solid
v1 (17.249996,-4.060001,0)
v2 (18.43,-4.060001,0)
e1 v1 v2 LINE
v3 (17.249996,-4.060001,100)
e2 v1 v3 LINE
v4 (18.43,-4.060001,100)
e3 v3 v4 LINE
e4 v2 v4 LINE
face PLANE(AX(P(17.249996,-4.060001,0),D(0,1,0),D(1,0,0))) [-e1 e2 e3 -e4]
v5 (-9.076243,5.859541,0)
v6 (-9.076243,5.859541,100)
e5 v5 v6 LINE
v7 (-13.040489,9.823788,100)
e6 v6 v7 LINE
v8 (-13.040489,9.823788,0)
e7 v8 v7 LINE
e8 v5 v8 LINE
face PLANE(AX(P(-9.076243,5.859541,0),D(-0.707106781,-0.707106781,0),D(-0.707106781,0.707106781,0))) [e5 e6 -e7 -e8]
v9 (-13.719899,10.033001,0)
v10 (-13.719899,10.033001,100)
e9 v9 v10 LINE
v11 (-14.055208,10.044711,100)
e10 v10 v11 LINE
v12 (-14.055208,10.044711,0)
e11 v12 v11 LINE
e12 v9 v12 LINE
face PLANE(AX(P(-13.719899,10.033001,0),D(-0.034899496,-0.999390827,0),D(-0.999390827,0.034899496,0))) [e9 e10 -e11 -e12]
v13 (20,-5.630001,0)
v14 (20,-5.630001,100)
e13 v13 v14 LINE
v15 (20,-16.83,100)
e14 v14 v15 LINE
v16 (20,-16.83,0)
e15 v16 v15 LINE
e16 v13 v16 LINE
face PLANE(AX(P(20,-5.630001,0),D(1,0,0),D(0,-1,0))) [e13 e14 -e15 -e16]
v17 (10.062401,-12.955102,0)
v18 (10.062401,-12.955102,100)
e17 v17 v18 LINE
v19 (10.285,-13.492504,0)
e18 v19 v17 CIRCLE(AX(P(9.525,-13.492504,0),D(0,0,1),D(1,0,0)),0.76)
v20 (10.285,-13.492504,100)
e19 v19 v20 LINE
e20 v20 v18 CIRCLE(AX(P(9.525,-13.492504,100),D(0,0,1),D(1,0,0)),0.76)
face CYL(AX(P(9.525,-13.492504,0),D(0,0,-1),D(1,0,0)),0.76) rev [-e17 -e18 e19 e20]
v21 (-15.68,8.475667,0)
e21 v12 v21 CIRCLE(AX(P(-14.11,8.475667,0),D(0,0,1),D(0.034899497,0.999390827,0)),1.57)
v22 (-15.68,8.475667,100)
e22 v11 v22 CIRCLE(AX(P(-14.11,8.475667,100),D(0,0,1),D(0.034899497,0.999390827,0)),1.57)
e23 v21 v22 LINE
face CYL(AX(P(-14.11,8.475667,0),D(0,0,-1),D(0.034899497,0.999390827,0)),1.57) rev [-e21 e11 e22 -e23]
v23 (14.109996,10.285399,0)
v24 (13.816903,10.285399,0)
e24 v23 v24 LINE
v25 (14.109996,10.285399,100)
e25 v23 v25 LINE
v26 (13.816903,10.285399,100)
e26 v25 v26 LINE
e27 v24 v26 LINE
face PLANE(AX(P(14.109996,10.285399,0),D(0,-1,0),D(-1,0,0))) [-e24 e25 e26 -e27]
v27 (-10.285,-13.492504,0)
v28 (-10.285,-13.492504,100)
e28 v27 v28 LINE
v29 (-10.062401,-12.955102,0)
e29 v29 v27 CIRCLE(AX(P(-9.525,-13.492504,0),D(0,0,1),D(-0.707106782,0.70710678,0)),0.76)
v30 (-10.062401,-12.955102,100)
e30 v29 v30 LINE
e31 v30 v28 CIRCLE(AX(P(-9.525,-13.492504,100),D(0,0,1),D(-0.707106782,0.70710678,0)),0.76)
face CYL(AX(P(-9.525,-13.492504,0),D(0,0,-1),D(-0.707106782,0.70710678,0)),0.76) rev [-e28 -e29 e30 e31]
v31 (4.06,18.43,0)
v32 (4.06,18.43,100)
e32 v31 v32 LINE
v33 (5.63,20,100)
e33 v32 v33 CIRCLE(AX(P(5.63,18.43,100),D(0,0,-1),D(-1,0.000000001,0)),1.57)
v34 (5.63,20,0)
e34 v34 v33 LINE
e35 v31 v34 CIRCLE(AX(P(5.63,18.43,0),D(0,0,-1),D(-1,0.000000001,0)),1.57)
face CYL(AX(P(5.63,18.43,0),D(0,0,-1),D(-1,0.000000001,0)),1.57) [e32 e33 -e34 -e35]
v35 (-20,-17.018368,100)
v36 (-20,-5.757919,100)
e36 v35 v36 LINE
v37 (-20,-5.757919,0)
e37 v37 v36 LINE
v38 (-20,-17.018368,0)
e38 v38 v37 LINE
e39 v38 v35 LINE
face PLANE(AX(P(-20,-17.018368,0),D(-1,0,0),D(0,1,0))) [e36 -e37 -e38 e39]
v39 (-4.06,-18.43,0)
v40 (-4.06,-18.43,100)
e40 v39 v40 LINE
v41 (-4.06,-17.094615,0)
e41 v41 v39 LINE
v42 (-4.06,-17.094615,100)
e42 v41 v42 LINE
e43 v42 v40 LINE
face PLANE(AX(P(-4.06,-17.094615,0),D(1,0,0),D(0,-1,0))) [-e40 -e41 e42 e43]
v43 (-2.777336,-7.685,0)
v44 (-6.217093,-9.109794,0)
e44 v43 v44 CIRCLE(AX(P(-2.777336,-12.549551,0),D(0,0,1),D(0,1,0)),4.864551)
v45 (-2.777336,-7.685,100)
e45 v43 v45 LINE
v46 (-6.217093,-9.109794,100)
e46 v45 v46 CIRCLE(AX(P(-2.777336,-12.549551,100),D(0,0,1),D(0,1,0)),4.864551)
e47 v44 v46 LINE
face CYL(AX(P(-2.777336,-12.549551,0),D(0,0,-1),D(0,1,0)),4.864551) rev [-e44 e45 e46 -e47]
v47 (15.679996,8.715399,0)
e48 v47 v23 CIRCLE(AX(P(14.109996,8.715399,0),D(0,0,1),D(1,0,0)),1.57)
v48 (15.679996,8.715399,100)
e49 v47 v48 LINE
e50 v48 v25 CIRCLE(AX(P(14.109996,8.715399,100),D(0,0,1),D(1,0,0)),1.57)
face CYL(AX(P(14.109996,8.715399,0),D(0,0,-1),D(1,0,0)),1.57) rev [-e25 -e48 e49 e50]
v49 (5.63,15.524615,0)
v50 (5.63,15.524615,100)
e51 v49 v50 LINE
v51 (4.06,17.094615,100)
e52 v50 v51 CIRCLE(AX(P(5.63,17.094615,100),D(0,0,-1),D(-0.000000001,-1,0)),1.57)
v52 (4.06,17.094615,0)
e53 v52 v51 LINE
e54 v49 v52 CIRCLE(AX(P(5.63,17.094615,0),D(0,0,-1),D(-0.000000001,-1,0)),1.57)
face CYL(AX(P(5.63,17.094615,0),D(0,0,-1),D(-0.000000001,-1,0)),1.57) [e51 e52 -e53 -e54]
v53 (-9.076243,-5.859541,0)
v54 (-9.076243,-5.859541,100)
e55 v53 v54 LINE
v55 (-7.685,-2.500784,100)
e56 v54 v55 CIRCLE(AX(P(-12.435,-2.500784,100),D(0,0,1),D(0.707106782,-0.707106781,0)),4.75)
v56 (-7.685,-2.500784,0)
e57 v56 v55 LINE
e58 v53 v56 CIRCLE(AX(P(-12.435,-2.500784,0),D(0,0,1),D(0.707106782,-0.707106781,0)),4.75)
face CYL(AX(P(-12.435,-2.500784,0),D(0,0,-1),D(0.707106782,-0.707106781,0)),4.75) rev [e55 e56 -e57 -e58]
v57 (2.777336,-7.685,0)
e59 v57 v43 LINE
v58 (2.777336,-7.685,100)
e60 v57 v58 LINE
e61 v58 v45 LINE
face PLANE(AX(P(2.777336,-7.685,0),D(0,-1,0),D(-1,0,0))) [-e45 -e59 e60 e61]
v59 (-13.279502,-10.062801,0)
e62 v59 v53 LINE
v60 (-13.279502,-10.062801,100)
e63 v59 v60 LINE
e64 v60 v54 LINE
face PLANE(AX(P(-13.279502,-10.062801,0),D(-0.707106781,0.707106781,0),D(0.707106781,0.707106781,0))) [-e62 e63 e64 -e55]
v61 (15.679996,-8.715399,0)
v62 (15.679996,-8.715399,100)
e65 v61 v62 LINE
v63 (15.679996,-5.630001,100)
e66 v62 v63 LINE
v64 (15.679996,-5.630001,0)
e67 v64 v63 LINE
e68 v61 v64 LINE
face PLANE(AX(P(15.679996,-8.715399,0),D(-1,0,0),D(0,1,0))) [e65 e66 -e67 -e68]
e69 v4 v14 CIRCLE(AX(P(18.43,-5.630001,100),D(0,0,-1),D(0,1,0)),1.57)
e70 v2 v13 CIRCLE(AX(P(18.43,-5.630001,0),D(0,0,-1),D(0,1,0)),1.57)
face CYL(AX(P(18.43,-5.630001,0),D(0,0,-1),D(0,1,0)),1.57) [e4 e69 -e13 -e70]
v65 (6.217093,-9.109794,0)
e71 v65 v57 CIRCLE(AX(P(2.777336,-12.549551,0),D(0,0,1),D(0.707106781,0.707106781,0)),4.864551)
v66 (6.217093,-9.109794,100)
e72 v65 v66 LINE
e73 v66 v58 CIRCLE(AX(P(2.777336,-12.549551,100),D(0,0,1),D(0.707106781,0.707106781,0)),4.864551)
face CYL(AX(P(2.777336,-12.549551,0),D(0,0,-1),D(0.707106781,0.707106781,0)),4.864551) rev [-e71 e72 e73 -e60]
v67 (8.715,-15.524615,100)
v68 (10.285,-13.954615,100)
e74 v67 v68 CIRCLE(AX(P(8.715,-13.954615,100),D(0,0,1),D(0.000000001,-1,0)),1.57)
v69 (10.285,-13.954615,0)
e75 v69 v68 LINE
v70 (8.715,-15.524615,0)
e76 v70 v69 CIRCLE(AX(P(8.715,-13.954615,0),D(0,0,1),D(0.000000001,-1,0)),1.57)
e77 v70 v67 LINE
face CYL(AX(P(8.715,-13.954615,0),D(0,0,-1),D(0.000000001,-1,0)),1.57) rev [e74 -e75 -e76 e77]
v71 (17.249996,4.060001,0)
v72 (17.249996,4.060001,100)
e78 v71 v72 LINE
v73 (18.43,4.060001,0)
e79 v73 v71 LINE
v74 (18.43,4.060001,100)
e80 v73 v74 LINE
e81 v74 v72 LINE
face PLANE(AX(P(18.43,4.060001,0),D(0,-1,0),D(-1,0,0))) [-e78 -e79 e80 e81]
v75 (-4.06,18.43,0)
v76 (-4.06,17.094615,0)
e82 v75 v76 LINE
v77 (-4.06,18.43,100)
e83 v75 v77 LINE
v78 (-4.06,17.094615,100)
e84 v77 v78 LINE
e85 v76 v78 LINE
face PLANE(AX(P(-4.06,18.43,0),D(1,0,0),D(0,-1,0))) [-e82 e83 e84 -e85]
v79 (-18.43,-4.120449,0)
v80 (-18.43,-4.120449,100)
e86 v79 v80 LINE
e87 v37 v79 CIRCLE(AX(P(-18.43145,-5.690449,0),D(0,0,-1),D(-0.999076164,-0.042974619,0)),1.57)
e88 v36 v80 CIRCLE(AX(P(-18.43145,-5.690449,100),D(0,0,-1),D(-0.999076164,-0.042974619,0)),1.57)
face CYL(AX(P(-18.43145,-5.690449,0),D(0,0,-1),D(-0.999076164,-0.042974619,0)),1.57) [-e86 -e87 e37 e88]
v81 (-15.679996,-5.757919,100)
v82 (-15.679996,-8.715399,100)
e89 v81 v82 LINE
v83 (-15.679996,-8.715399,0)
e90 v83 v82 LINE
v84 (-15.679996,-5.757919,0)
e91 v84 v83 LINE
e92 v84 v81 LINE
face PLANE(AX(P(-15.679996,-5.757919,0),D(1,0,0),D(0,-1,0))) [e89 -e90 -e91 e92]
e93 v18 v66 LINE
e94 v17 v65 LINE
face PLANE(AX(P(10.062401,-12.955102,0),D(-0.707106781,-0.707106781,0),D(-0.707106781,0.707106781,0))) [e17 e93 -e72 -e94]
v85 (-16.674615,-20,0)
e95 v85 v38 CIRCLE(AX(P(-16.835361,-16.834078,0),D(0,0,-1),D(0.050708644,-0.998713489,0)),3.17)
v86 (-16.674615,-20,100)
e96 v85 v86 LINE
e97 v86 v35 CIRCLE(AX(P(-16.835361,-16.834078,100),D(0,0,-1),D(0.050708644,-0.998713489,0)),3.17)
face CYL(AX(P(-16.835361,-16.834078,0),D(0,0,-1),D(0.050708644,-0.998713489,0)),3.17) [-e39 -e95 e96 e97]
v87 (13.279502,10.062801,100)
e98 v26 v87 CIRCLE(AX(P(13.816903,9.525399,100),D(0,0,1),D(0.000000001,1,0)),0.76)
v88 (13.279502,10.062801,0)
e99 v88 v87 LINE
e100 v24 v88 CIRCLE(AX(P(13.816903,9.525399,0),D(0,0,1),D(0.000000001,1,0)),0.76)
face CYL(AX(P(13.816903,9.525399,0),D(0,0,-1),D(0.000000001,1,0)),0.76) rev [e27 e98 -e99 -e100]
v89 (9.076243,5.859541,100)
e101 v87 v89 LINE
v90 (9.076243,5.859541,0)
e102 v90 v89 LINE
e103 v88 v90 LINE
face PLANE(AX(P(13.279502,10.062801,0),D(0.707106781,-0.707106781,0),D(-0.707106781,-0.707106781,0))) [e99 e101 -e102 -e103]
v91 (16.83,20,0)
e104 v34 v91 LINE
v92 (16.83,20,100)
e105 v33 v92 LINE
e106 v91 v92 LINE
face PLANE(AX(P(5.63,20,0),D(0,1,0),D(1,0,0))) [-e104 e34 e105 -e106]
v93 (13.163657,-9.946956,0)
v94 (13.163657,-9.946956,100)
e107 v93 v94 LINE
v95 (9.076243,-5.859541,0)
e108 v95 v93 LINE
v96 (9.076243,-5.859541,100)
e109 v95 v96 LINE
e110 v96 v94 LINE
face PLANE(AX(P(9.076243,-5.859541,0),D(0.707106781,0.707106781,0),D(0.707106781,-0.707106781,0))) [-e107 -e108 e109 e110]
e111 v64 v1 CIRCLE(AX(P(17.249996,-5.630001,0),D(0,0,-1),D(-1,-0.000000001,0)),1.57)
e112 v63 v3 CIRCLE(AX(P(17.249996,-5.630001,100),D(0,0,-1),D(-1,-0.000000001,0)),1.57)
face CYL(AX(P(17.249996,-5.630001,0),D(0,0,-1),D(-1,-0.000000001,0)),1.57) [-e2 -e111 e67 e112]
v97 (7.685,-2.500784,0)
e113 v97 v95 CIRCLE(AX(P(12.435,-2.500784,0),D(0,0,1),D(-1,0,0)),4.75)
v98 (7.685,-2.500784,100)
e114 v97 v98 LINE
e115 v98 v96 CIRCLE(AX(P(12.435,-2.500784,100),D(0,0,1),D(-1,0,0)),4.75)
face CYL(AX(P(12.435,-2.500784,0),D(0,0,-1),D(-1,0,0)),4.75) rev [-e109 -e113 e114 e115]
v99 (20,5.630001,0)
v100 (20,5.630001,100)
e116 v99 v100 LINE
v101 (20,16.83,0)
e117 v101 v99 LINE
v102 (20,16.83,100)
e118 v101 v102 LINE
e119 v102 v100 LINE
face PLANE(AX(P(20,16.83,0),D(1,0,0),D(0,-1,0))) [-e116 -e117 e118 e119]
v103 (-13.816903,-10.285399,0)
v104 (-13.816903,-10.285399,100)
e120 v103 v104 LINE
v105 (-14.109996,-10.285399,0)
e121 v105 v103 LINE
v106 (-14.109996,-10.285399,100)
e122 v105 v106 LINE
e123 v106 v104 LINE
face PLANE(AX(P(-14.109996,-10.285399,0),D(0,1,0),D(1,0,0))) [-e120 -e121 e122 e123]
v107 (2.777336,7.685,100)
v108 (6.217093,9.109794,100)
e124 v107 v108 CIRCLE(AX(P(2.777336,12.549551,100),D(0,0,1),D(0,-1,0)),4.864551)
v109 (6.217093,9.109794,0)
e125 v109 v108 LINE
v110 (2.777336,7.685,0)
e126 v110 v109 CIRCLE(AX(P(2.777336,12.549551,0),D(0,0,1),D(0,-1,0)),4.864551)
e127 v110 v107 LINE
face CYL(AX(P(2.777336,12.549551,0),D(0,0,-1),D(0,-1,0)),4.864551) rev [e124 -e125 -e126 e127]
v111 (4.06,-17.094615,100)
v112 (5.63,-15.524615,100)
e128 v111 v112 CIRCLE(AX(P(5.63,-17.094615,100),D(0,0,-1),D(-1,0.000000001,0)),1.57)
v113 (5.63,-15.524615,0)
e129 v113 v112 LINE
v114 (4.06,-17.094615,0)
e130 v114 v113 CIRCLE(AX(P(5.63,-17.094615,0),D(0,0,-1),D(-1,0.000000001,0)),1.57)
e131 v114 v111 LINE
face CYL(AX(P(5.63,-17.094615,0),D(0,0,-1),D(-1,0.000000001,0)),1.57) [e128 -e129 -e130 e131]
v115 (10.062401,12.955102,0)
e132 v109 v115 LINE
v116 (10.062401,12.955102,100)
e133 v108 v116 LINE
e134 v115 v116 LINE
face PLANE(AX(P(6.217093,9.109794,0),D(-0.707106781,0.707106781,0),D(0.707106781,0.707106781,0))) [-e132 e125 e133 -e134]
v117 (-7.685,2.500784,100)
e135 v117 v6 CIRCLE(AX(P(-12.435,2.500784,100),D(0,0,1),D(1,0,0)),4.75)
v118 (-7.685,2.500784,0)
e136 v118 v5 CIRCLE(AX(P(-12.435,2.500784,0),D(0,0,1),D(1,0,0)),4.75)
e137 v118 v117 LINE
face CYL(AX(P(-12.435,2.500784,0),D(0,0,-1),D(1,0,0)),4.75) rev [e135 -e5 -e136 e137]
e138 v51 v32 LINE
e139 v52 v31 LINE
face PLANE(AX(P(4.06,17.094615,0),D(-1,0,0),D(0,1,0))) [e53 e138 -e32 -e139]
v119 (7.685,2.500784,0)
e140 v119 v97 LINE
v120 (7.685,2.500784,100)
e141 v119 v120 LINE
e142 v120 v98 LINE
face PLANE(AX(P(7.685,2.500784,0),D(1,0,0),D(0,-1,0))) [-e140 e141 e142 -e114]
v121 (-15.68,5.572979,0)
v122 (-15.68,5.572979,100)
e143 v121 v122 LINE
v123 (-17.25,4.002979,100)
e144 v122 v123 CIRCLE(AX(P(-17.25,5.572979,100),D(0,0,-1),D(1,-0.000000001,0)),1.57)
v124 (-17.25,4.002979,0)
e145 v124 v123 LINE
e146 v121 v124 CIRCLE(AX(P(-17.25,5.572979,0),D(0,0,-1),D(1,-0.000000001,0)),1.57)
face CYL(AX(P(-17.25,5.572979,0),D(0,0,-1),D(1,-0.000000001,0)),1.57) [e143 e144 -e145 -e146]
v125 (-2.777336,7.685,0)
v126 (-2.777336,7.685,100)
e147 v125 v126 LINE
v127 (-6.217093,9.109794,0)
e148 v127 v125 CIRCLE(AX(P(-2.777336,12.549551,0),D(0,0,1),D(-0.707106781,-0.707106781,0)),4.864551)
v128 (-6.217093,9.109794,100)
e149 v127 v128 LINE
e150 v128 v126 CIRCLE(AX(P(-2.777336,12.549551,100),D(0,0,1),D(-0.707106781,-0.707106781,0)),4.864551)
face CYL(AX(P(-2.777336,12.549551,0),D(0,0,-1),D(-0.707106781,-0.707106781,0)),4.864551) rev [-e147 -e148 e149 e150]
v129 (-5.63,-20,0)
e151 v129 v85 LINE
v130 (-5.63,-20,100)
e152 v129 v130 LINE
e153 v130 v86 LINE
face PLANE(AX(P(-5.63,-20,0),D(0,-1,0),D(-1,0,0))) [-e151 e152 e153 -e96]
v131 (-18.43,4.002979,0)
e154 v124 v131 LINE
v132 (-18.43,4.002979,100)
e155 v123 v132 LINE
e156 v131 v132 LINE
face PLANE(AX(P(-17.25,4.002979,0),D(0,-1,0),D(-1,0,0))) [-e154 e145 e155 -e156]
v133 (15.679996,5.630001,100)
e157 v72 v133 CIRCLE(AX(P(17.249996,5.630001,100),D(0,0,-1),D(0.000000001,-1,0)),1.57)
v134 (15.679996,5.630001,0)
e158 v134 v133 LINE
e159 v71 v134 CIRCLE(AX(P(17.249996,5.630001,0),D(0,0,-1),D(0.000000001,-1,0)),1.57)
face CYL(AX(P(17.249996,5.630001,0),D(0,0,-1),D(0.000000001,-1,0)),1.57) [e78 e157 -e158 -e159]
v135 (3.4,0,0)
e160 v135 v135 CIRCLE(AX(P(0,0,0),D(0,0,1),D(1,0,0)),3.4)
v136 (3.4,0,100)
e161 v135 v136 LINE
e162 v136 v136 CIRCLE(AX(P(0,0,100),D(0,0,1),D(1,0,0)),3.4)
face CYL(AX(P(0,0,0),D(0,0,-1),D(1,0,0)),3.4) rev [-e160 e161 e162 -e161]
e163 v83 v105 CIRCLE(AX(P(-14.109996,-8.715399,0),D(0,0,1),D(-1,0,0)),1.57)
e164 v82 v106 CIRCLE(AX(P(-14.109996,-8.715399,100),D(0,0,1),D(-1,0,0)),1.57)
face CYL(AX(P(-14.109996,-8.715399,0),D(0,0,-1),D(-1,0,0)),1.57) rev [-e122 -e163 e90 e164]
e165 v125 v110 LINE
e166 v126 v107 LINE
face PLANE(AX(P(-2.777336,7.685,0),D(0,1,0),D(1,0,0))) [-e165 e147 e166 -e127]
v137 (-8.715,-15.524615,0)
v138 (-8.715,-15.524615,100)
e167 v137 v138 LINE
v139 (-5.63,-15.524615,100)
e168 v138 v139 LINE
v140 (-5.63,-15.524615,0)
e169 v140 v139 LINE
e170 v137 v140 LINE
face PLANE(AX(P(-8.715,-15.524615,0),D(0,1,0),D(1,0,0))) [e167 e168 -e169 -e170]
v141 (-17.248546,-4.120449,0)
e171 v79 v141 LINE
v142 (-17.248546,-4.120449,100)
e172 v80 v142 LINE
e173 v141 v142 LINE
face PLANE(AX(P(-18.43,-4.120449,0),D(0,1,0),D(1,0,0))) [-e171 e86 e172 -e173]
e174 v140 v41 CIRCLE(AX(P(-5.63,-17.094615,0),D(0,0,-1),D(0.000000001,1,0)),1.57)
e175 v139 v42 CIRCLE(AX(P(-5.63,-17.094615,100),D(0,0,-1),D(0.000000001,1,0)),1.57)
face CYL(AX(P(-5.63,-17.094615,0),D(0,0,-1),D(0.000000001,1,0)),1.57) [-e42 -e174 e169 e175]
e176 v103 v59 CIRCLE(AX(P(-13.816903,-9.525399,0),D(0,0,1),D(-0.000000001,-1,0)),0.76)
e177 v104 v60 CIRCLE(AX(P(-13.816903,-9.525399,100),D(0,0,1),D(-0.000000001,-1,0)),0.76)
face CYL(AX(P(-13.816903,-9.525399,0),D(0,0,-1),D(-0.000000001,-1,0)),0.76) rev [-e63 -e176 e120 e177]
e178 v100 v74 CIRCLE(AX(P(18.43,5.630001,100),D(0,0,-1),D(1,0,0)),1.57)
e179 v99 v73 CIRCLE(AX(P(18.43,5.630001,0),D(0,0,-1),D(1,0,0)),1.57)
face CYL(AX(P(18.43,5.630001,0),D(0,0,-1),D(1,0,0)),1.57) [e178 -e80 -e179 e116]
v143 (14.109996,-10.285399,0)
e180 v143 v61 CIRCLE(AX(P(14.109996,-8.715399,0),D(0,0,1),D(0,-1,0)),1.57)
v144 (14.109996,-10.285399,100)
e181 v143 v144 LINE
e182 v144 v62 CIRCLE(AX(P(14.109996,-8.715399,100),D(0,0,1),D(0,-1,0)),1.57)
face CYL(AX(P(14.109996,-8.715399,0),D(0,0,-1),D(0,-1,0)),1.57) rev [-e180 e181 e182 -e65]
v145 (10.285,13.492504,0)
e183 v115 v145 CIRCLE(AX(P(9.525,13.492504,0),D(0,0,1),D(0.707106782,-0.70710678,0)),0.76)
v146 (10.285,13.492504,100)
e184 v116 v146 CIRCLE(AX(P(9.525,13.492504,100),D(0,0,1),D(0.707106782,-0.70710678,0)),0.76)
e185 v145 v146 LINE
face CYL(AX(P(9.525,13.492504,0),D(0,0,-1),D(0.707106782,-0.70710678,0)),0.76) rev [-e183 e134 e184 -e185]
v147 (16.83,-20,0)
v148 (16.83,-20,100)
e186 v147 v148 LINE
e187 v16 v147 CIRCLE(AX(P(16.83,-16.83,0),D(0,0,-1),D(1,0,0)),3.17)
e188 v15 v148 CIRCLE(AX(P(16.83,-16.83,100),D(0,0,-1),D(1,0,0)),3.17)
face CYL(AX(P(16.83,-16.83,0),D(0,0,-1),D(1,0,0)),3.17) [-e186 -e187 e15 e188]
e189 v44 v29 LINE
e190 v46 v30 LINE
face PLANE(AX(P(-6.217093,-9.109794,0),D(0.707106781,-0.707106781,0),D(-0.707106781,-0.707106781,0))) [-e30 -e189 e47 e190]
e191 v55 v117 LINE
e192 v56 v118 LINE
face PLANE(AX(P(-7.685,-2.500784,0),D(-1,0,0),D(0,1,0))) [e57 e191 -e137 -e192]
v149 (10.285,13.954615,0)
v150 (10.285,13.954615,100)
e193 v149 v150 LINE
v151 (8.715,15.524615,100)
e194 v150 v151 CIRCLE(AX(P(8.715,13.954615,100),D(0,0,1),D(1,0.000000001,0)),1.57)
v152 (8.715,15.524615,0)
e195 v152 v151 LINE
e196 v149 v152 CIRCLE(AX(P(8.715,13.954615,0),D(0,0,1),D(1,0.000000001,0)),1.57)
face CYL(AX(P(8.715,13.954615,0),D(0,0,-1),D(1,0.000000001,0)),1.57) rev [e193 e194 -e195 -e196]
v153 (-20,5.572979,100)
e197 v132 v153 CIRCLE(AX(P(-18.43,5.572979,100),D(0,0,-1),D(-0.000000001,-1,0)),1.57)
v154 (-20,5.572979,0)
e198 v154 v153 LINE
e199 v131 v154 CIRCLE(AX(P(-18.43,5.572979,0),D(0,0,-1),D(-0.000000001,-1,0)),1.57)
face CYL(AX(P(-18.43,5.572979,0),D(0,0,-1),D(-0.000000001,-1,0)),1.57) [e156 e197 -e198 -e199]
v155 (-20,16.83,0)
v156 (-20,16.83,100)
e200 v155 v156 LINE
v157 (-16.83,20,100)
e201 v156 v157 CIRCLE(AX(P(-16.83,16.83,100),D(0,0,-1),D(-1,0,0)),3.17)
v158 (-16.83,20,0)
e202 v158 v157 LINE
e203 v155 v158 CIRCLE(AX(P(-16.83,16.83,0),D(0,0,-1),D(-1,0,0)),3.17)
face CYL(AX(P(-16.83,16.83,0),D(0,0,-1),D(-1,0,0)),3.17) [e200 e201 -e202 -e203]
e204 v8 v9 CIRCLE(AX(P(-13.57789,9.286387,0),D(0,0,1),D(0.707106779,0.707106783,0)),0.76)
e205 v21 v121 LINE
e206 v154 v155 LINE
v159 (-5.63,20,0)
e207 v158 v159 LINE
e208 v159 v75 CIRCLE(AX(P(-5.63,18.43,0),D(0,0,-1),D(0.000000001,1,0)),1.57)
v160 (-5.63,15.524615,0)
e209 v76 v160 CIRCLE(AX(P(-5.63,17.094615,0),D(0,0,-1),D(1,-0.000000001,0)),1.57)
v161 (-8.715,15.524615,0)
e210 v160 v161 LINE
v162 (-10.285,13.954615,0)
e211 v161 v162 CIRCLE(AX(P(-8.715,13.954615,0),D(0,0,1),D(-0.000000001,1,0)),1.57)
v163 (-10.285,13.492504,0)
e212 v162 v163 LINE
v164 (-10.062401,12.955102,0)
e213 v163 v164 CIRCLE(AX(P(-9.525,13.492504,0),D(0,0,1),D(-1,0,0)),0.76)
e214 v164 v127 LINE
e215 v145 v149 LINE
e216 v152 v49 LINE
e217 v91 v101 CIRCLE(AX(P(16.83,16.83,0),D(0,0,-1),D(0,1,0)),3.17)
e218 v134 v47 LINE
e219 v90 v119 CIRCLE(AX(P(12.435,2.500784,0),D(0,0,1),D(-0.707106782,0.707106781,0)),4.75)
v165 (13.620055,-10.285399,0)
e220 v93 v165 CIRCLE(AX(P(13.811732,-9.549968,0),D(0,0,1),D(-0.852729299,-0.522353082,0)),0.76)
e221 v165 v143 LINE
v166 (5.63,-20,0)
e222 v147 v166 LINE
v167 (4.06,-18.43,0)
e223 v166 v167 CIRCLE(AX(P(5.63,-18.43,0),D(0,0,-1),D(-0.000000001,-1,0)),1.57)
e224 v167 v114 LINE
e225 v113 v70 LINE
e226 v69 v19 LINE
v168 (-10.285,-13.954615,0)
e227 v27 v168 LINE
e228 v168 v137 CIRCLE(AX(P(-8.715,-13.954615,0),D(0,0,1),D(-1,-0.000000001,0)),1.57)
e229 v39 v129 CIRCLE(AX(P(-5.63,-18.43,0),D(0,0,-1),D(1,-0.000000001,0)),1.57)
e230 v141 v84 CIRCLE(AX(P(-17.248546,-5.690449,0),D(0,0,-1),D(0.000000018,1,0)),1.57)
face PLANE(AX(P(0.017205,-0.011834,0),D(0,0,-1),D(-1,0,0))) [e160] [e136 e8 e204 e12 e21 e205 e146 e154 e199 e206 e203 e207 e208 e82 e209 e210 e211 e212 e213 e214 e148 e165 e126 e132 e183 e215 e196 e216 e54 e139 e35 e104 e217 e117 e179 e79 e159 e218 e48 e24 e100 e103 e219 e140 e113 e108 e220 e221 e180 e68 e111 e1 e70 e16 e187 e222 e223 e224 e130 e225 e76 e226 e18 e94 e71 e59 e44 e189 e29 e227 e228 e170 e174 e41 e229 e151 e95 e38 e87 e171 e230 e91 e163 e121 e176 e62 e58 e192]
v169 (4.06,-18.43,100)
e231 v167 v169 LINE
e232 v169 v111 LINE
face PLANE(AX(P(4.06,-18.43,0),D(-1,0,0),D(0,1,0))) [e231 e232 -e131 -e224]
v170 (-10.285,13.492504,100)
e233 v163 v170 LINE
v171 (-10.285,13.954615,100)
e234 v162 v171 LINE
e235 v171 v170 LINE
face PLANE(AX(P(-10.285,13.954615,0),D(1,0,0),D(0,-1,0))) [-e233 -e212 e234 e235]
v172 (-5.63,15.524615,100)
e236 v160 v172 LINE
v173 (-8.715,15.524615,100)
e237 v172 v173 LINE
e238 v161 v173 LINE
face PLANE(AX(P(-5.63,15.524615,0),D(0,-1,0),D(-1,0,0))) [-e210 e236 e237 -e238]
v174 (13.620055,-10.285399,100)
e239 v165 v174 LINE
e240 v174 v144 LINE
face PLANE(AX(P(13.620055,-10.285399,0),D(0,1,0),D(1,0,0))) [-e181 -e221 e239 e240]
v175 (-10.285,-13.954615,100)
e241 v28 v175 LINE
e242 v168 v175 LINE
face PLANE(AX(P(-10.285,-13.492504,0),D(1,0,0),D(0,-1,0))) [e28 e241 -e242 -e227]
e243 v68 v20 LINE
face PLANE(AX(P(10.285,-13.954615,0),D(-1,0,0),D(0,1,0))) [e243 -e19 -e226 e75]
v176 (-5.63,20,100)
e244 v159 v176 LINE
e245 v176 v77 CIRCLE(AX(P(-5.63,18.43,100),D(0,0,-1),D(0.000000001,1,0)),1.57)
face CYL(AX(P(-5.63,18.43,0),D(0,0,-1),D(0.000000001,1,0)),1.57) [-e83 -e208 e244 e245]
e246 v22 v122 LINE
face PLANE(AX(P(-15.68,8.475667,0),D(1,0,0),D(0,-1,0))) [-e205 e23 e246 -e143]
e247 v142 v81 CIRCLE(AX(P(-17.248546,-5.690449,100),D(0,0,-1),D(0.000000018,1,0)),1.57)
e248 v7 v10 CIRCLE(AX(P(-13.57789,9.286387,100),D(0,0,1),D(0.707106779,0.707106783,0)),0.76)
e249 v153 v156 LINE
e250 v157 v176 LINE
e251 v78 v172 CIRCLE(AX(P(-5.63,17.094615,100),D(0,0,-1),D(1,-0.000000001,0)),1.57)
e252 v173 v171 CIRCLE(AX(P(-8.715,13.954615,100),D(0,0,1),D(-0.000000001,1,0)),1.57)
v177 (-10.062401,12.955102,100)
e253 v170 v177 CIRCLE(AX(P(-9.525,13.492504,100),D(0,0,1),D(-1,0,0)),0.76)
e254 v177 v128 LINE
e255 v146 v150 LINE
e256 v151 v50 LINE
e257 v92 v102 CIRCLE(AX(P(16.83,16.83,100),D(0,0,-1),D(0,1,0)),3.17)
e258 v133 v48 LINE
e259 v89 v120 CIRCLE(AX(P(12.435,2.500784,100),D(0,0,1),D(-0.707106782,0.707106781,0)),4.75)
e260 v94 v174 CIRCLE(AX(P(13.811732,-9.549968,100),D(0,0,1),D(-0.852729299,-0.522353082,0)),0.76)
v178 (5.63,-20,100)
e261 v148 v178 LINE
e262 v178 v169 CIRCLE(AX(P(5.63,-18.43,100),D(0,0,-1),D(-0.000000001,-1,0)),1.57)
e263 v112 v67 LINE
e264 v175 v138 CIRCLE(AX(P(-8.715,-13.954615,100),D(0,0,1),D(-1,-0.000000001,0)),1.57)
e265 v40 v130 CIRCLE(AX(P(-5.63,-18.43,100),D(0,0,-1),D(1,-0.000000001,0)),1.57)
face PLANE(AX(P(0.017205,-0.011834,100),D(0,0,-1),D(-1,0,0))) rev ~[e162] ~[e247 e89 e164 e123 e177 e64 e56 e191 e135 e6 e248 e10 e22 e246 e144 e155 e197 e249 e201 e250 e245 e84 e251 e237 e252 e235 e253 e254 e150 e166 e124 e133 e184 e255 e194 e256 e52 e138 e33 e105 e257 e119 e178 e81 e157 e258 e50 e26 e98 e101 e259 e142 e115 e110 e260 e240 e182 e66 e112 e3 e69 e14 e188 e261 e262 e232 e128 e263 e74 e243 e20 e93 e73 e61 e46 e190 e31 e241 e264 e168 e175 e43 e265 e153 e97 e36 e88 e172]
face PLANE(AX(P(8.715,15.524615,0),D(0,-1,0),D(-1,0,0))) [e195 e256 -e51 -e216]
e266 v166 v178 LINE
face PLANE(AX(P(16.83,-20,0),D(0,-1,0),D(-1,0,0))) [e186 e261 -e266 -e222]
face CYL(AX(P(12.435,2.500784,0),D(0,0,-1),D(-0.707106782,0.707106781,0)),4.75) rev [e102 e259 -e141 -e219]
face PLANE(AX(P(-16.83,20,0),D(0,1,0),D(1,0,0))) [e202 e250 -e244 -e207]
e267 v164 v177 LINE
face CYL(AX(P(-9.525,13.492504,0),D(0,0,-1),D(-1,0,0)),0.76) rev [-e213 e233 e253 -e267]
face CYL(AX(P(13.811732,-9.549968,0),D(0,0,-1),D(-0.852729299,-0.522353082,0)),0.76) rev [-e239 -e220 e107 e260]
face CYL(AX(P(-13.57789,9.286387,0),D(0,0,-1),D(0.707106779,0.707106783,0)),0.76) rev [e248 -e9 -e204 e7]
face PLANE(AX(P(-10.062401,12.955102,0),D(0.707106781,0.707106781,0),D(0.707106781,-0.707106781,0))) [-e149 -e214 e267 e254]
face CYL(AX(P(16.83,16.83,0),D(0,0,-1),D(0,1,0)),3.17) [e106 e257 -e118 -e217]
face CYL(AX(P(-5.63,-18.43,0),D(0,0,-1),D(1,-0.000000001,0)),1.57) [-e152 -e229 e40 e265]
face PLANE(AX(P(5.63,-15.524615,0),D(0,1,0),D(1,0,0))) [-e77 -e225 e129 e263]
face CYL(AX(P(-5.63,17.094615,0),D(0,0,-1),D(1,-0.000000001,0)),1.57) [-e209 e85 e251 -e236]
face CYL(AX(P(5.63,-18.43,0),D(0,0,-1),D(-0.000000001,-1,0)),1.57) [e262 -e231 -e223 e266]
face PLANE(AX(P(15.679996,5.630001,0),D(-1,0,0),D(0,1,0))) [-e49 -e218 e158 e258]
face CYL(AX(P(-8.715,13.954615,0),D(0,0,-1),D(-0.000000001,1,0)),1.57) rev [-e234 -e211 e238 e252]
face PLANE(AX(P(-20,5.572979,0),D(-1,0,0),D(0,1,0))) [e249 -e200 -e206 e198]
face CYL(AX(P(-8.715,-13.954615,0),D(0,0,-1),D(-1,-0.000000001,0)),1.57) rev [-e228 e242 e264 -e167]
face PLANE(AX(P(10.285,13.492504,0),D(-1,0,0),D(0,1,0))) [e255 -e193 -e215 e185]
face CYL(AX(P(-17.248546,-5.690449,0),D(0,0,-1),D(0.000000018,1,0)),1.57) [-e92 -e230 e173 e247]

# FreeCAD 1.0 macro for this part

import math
import FreeCAD as App
import Part
import Sketcher

V = App.Vector
Q = App.Units.Quantity

doc = App.newDocument("Part")
body = doc.addObject("PartDesign::Body", "Body")

# Sketch on XY plane
sketch1 = body.newObject("Sketcher::SketchObject", "Sketch")
sketch1.AttachmentSupport = (doc.getObject("XY_Plane"), [""])
sketch1.MapMode = "FlatFace"
sketch1.addGeometry([
    Part.LineSegment(V(-5.63, -15.524615, 0), V(-8.715, -15.524615, 0)),  # 0
    Part.ArcOfCircle(Part.Circle(V(-8.715, -13.954615, 0), V(0, 0, 1), 1.57), math.radians(-180), math.radians(-90)),  # 1
    Part.LineSegment(V(-10.285, -13.954615, 0), V(-10.285, -13.492504, 0)),  # 2
    Part.ArcOfCircle(Part.Circle(V(-9.525, -13.492504, 0), V(0, 0, 1), 0.76), math.radians(135), math.radians(180)),  # 3
    Part.LineSegment(V(-10.062401, -12.955102, 0), V(-6.217093, -9.109794, 0)),  # 4
    Part.ArcOfCircle(Part.Circle(V(-2.777336, -12.549551, 0), V(0, 0, 1), 4.864551), math.radians(90), math.radians(135)),  # 5
    Part.LineSegment(V(-2.777336, -7.685, 0), V(2.777336, -7.685, 0)),  # 6
    Part.ArcOfCircle(Part.Circle(V(2.777336, -12.549551, 0), V(0, 0, 1), 4.864551), math.radians(45), math.radians(90)),  # 7
    Part.LineSegment(V(6.217093, -9.109794, 0), V(10.062401, -12.955102, 0)),  # 8
    Part.ArcOfCircle(Part.Circle(V(9.525, -13.492504, 0), V(0, 0, 1), 0.76), math.radians(0), math.radians(45)),  # 9
    Part.LineSegment(V(10.285, -13.492504, 0), V(10.285, -13.954615, 0)),  # 10
    Part.ArcOfCircle(Part.Circle(V(8.715, -13.954615, 0), V(0, 0, 1), 1.57), math.radians(-90), math.radians(0)),  # 11
    Part.LineSegment(V(8.715, -15.524615, 0), V(5.63, -15.524615, 0)),  # 12
    Part.ArcOfCircle(Part.Circle(V(5.63, -17.094615, 0), V(0, 0, 1), 1.57), math.radians(90), math.radians(180)),  # 13
    Part.LineSegment(V(4.06, -17.094615, 0), V(4.06, -18.43, 0)),  # 14
    Part.ArcOfCircle(Part.Circle(V(5.63, -18.43, 0), V(0, 0, 1), 1.57), math.radians(-180), math.radians(-90)),  # 15
    Part.LineSegment(V(5.63, -20, 0), V(16.83, -20, 0)),  # 16
    Part.ArcOfCircle(Part.Circle(V(16.83, -16.83, 0), V(0, 0, 1), 3.17), math.radians(-90), math.radians(0)),  # 17
    Part.LineSegment(V(20, -16.83, 0), V(20, -5.630001, 0)),  # 18
    Part.ArcOfCircle(Part.Circle(V(18.43, -5.630001, 0), V(0, 0, 1), 1.57), math.radians(0), math.radians(90)),  # 19
    Part.LineSegment(V(18.43, -4.060001, 0), V(17.249996, -4.060001, 0)),  # 20
    Part.ArcOfCircle(Part.Circle(V(17.249996, -5.630001, 0), V(0, 0, 1), 1.57), math.radians(90), math.radians(180)),  # 21
    Part.LineSegment(V(15.679996, -5.630001, 0), V(15.679996, -8.715399, 0)),  # 22
    Part.ArcOfCircle(Part.Circle(V(14.109996, -8.715399, 0), V(0, 0, 1), 1.57), math.radians(-90), math.radians(0)),  # 23
    Part.LineSegment(V(14.109996, -10.285399, 0), V(13.620055, -10.285399, 0)),  # 24
    Part.ArcOfCircle(Part.Circle(V(13.811732, -9.549968, 0), V(0, 0, 1), 0.76), math.radians(-148.509776), math.radians(-104.608114)),  # 25
    Part.LineSegment(V(13.163657, -9.946956, 0), V(9.076243, -5.859541, 0)),  # 26
    Part.ArcOfCircle(Part.Circle(V(12.435, -2.500784, 0), V(0, 0, 1), 4.75), math.radians(-180), math.radians(-135)),  # 27
    Part.LineSegment(V(7.685, -2.500784, 0), V(7.685, 2.500784, 0)),  # 28
    Part.ArcOfCircle(Part.Circle(V(12.435, 2.500784, 0), V(0, 0, 1), 4.75), math.radians(135), math.radians(180)),  # 29
    Part.LineSegment(V(9.076243, 5.859541, 0), V(13.279502, 10.062801, 0)),  # 30
    Part.ArcOfCircle(Part.Circle(V(13.816903, 9.525399, 0), V(0, 0, 1), 0.76), math.radians(90), math.radians(135)),  # 31
    Part.LineSegment(V(13.816903, 10.285399, 0), V(14.109996, 10.285399, 0)),  # 32
    Part.ArcOfCircle(Part.Circle(V(14.109996, 8.715399, 0), V(0, 0, 1), 1.57), math.radians(0), math.radians(90)),  # 33
    Part.LineSegment(V(15.679996, 8.715399, 0), V(15.679996, 5.630001, 0)),  # 34
    Part.ArcOfCircle(Part.Circle(V(17.249996, 5.630001, 0), V(0, 0, 1), 1.57), math.radians(180), math.radians(270)),  # 35
    Part.LineSegment(V(17.249996, 4.060001, 0), V(18.43, 4.060001, 0)),  # 36
    Part.ArcOfCircle(Part.Circle(V(18.43, 5.630001, 0), V(0, 0, 1), 1.57), math.radians(-90), math.radians(0)),  # 37
    Part.LineSegment(V(20, 5.630001, 0), V(20, 16.83, 0)),  # 38
    Part.ArcOfCircle(Part.Circle(V(16.83, 16.83, 0), V(0, 0, 1), 3.17), math.radians(0), math.radians(90)),  # 39
    Part.LineSegment(V(16.83, 20, 0), V(5.63, 20, 0)),  # 40
    Part.ArcOfCircle(Part.Circle(V(5.63, 18.43, 0), V(0, 0, 1), 1.57), math.radians(90), math.radians(180)),  # 41
    Part.LineSegment(V(4.06, 18.43, 0), V(4.06, 17.094615, 0)),  # 42
    Part.ArcOfCircle(Part.Circle(V(5.63, 17.094615, 0), V(0, 0, 1), 1.57), math.radians(-180), math.radians(-90)),  # 43
    Part.LineSegment(V(5.63, 15.524615, 0), V(8.715, 15.524615, 0)),  # 44
    Part.ArcOfCircle(Part.Circle(V(8.715, 13.954615, 0), V(0, 0, 1), 1.57), math.radians(0), math.radians(90)),  # 45
    Part.LineSegment(V(10.285, 13.954615, 0), V(10.285, 13.492504, 0)),  # 46
    Part.ArcOfCircle(Part.Circle(V(9.525, 13.492504, 0), V(0, 0, 1), 0.76), math.radians(-45), math.radians(0)),  # 47
    Part.LineSegment(V(10.062401, 12.955102, 0), V(6.217093, 9.109794, 0)),  # 48
    Part.ArcOfCircle(Part.Circle(V(2.777336, 12.549551, 0), V(0, 0, 1), 4.864551), math.radians(-90), math.radians(-45)),  # 49
    Part.LineSegment(V(2.777336, 7.685, 0), V(-2.777336, 7.685, 0)),  # 50
    Part.ArcOfCircle(Part.Circle(V(-2.777336, 12.549551, 0), V(0, 0, 1), 4.864551), math.radians(-135), math.radians(-90)),  # 51
    Part.LineSegment(V(-6.217093, 9.109794, 0), V(-10.062401, 12.955102, 0)),  # 52
    Part.ArcOfCircle(Part.Circle(V(-9.525, 13.492504, 0), V(0, 0, 1), 0.76), math.radians(180), math.radians(225)),  # 53
    Part.LineSegment(V(-10.285, 13.492504, 0), V(-10.285, 13.954615, 0)),  # 54
    Part.ArcOfCircle(Part.Circle(V(-8.715, 13.954615, 0), V(0, 0, 1), 1.57), math.radians(90), math.radians(180)),  # 55
    Part.LineSegment(V(-8.715, 15.524615, 0), V(-5.63, 15.524615, 0)),  # 56
    Part.ArcOfCircle(Part.Circle(V(-5.63, 17.094615, 0), V(0, 0, 1), 1.57), math.radians(-90), math.radians(0)),  # 57
    Part.LineSegment(V(-4.06, 17.094615, 0), V(-4.06, 18.43, 0)),  # 58
    Part.ArcOfCircle(Part.Circle(V(-5.63, 18.43, 0), V(0, 0, 1), 1.57), math.radians(0), math.radians(90)),  # 59
    Part.LineSegment(V(-5.63, 20, 0), V(-16.83, 20, 0)),  # 60
    Part.ArcOfCircle(Part.Circle(V(-16.83, 16.83, 0), V(0, 0, 1), 3.17), math.radians(90), math.radians(180)),  # 61
    Part.LineSegment(V(-20, 16.83, 0), V(-20, 5.572979, 0)),  # 62
    Part.ArcOfCircle(Part.Circle(V(-18.43, 5.572979, 0), V(0, 0, 1), 1.57), math.radians(-180), math.radians(-90)),  # 63
    Part.LineSegment(V(-18.43, 4.002979, 0), V(-17.25, 4.002979, 0)),  # 64
    Part.ArcOfCircle(Part.Circle(V(-17.25, 5.572979, 0), V(0, 0, 1), 1.57), math.radians(-90), math.radians(0)),  # 65
    Part.LineSegment(V(-15.68, 5.572979, 0), V(-15.68, 8.475667, 0)),  # 66
    Part.ArcOfCircle(Part.Circle(V(-14.11, 8.475667, 0), V(0, 0, 1), 1.57), math.radians(88), math.radians(180)),  # 67
    Part.LineSegment(V(-14.055208, 10.044711, 0), V(-13.719899, 10.033001, 0)),  # 68
    Part.ArcOfCircle(Part.Circle(V(-13.57789, 9.286387, 0), V(0, 0, 1), 0.76), math.radians(45), math.radians(100.769233)),  # 69
    Part.LineSegment(V(-13.040489, 9.823788, 0), V(-9.076243, 5.859541, 0)),  # 70
    Part.ArcOfCircle(Part.Circle(V(-12.435, 2.500784, 0), V(0, 0, 1), 4.75), math.radians(0), math.radians(45)),  # 71
    Part.LineSegment(V(-7.685, 2.500784, 0), V(-7.685, -2.500784, 0)),  # 72
    Part.ArcOfCircle(Part.Circle(V(-12.435, -2.500784, 0), V(0, 0, 1), 4.75), math.radians(-45), math.radians(0)),  # 73
    Part.LineSegment(V(-9.076243, -5.859541, 0), V(-13.279502, -10.062801, 0)),  # 74
    Part.ArcOfCircle(Part.Circle(V(-13.816903, -9.525399, 0), V(0, 0, 1), 0.76), math.radians(-90), math.radians(-45)),  # 75
    Part.LineSegment(V(-13.816903, -10.285399, 0), V(-14.109996, -10.285399, 0)),  # 76
    Part.ArcOfCircle(Part.Circle(V(-14.109996, -8.715399, 0), V(0, 0, 1), 1.57), math.radians(180), math.radians(270)),  # 77
    Part.LineSegment(V(-15.679996, -8.715399, 0), V(-15.679996, -5.757919, 0)),  # 78
    Part.ArcOfCircle(Part.Circle(V(-17.248546, -5.690449, 0), V(0, 0, 1), 1.57), math.radians(-2.463018), math.radians(89.999999)),  # 79
    Part.LineSegment(V(-17.248546, -4.120449, 0), V(-18.43, -4.120449, 0)),  # 80
    Part.ArcOfCircle(Part.Circle(V(-18.43145, -5.690449, 0), V(0, 0, 1), 1.57), math.radians(89.947068), math.radians(182.463023)),  # 81
    Part.LineSegment(V(-20, -5.757919, 0), V(-20, -17.018368, 0)),  # 82
    Part.ArcOfCircle(Part.Circle(V(-16.835361, -16.834078, 0), V(0, 0, 1), 3.17), math.radians(-176.667196), math.radians(-87.093362)),  # 83
    Part.LineSegment(V(-16.674615, -20, 0), V(-5.63, -20, 0)),  # 84
    Part.ArcOfCircle(Part.Circle(V(-5.63, -18.43, 0), V(0, 0, 1), 1.57), math.radians(-90), math.radians(0)),  # 85
    Part.LineSegment(V(-4.06, -18.43, 0), V(-4.06, -17.094615, 0)),  # 86
    Part.ArcOfCircle(Part.Circle(V(-5.63, -17.094615, 0), V(0, 0, 1), 1.57), math.radians(0), math.radians(90)),  # 87
    Part.Circle(V(0, 0, 0), V(0, 0, 1), 3.4),  # 88
], False)
sketch1.addConstraint([
    Sketcher.Constraint("Tangent", 0, 2, 1, 2),
    Sketcher.Constraint("Tangent", 1, 1, 2, 1),
    Sketcher.Constraint("Tangent", 2, 2, 3, 2),
    Sketcher.Constraint("Tangent", 3, 1, 4, 1),
    Sketcher.Constraint("Tangent", 4, 2, 5, 2),
    Sketcher.Constraint("Tangent", 5, 1, 6, 1),
    Sketcher.Constraint("Tangent", 6, 2, 7, 2),
    Sketcher.Constraint("Tangent", 7, 1, 8, 1),
    Sketcher.Constraint("Tangent", 8, 2, 9, 2),
    Sketcher.Constraint("Tangent", 9, 1, 10, 1),
    Sketcher.Constraint("Tangent", 10, 2, 11, 2),
    Sketcher.Constraint("Tangent", 11, 1, 12, 1),
    Sketcher.Constraint("Tangent", 12, 2, 13, 1),
    Sketcher.Constraint("Tangent", 13, 2, 14, 1),
    Sketcher.Constraint("Tangent", 14, 2, 15, 1),
    Sketcher.Constraint("Tangent", 15, 2, 16, 1),
    Sketcher.Constraint("Tangent", 16, 2, 17, 1),
    Sketcher.Constraint("Tangent", 17, 2, 18, 1),
    Sketcher.Constraint("Tangent", 18, 2, 19, 1),
    Sketcher.Constraint("Tangent", 19, 2, 20, 1),
    Sketcher.Constraint("Tangent", 20, 2, 21, 1),
    Sketcher.Constraint("Tangent", 21, 2, 22, 1),
    Sketcher.Constraint("Tangent", 22, 2, 23, 2),
    Sketcher.Constraint("Tangent", 23, 1, 24, 1),
    Sketcher.Constraint("Coincident", 24, 2, 25, 2),
    Sketcher.Constraint("Coincident", 25, 1, 26, 1),
    Sketcher.Constraint("Tangent", 26, 2, 27, 2),
    Sketcher.Constraint("Tangent", 27, 1, 28, 1),
    Sketcher.Constraint("Tangent", 28, 2, 29, 2),
    Sketcher.Constraint("Tangent", 29, 1, 30, 1),
    Sketcher.Constraint("Tangent", 30, 2, 31, 2),
    Sketcher.Constraint("Tangent", 31, 1, 32, 1),
    Sketcher.Constraint("Tangent", 32, 2, 33, 2),
    Sketcher.Constraint("Tangent", 33, 1, 34, 1),
    Sketcher.Constraint("Tangent", 34, 2, 35, 1),
    Sketcher.Constraint("Tangent", 35, 2, 36, 1),
    Sketcher.Constraint("Tangent", 36, 2, 37, 1),
    Sketcher.Constraint("Tangent", 37, 2, 38, 1),
    Sketcher.Constraint("Tangent", 38, 2, 39, 1),
    Sketcher.Constraint("Tangent", 39, 2, 40, 1),
    Sketcher.Constraint("Tangent", 40, 2, 41, 1),
    Sketcher.Constraint("Tangent", 41, 2, 42, 1),
    Sketcher.Constraint("Tangent", 42, 2, 43, 1),
    Sketcher.Constraint("Tangent", 43, 2, 44, 1),
    Sketcher.Constraint("Tangent", 44, 2, 45, 2),
    Sketcher.Constraint("Tangent", 45, 1, 46, 1),
    Sketcher.Constraint("Tangent", 46, 2, 47, 2),
    Sketcher.Constraint("Tangent", 47, 1, 48, 1),
    Sketcher.Constraint("Tangent", 48, 2, 49, 2),
    Sketcher.Constraint("Tangent", 49, 1, 50, 1),
    Sketcher.Constraint("Tangent", 50, 2, 51, 2),
    Sketcher.Constraint("Tangent", 51, 1, 52, 1),
    Sketcher.Constraint("Tangent", 52, 2, 53, 2),
    Sketcher.Constraint("Tangent", 53, 1, 54, 1),
    Sketcher.Constraint("Tangent", 54, 2, 55, 2),
    Sketcher.Constraint("Tangent", 55, 1, 56, 1),
    Sketcher.Constraint("Tangent", 56, 2, 57, 1),
    Sketcher.Constraint("Tangent", 57, 2, 58, 1),
    Sketcher.Constraint("Tangent", 58, 2, 59, 1),
    Sketcher.Constraint("Tangent", 59, 2, 60, 1),
    Sketcher.Constraint("Tangent", 60, 2, 61, 1),
    Sketcher.Constraint("Tangent", 61, 2, 62, 1),
    Sketcher.Constraint("Tangent", 62, 2, 63, 1),
    Sketcher.Constraint("Tangent", 63, 2, 64, 1),
    Sketcher.Constraint("Tangent", 64, 2, 65, 1),
    Sketcher.Constraint("Tangent", 65, 2, 66, 1),
    Sketcher.Constraint("Tangent", 66, 2, 67, 2),
    Sketcher.Constraint("Tangent", 67, 1, 68, 1),
    Sketcher.Constraint("Coincident", 68, 2, 69, 2),
    Sketcher.Constraint("Tangent", 69, 1, 70, 1),
    Sketcher.Constraint("Tangent", 70, 2, 71, 2),
    Sketcher.Constraint("Tangent", 71, 1, 72, 1),
    Sketcher.Constraint("Tangent", 72, 2, 73, 2),
    Sketcher.Constraint("Tangent", 73, 1, 74, 1),
    Sketcher.Constraint("Tangent", 74, 2, 75, 2),
    Sketcher.Constraint("Tangent", 75, 1, 76, 1),
    Sketcher.Constraint("Tangent", 76, 2, 77, 2),
    Sketcher.Constraint("Tangent", 77, 1, 78, 1),
    Sketcher.Constraint("Coincident", 78, 2, 79, 1),
    Sketcher.Constraint("Tangent", 79, 2, 80, 1),
    Sketcher.Constraint("Coincident", 80, 2, 81, 1),
    Sketcher.Constraint("Coincident", 81, 2, 82, 1),
    Sketcher.Constraint("Coincident", 82, 2, 83, 1),
    Sketcher.Constraint("Coincident", 83, 2, 84, 1),
    Sketcher.Constraint("Tangent", 84, 2, 85, 1),
    Sketcher.Constraint("Tangent", 85, 2, 86, 1),
    Sketcher.Constraint("Tangent", 86, 2, 87, 1),
    Sketcher.Constraint("Tangent", 87, 2, 0, 1),
    Sketcher.Constraint("Horizontal", 0),
    Sketcher.Constraint("Vertical", 2),
    Sketcher.Constraint("Horizontal", 6),
    Sketcher.Constraint("Vertical", 10),
    Sketcher.Constraint("Horizontal", 12),
    Sketcher.Constraint("Vertical", 14),
    Sketcher.Constraint("Horizontal", 16),
    Sketcher.Constraint("Vertical", 18),
    Sketcher.Constraint("Horizontal", 20),
    Sketcher.Constraint("Vertical", 22),
    Sketcher.Constraint("Horizontal", 24),
    Sketcher.Constraint("Vertical", 28),
    Sketcher.Constraint("Horizontal", 32),
    Sketcher.Constraint("Vertical", 34),
    Sketcher.Constraint("Horizontal", 36),
    Sketcher.Constraint("Vertical", 38),
    Sketcher.Constraint("Horizontal", 40),
    Sketcher.Constraint("Vertical", 42),
    Sketcher.Constraint("Horizontal", 44),
    Sketcher.Constraint("Vertical", 46),
    Sketcher.Constraint("Horizontal", 50),
    Sketcher.Constraint("Vertical", 54),
    Sketcher.Constraint("Horizontal", 56),
    Sketcher.Constraint("Vertical", 58),
    Sketcher.Constraint("Horizontal", 60),
    Sketcher.Constraint("Vertical", 62),
    Sketcher.Constraint("Horizontal", 64),
    Sketcher.Constraint("Vertical", 66),
    Sketcher.Constraint("Vertical", 72),
    Sketcher.Constraint("Horizontal", 76),
    Sketcher.Constraint("Vertical", 78),
    Sketcher.Constraint("Horizontal", 80),
    Sketcher.Constraint("Vertical", 82),
    Sketcher.Constraint("Horizontal", 84),
    Sketcher.Constraint("Vertical", 86),
    Sketcher.Constraint("Coincident", 88, 3, -1, 1),
    Sketcher.Constraint("Equal", 5, 7),
    Sketcher.Constraint("Equal", 3, 9),
    Sketcher.Constraint("Equal", 1, 11),
    Sketcher.Constraint("Equal", 11, 13),
    Sketcher.Constraint("Equal", 13, 15),
    Sketcher.Constraint("Equal", 15, 19),
    Sketcher.Constraint("Equal", 19, 21),
    Sketcher.Constraint("Equal", 21, 23),
    Sketcher.Constraint("Equal", 9, 25),
    Sketcher.Constraint("Equal", 27, 29),
    Sketcher.Constraint("Equal", 25, 31),
    Sketcher.Constraint("Equal", 23, 33),
    Sketcher.Constraint("Equal", 33, 35),
    Sketcher.Constraint("Equal", 35, 37),
    Sketcher.Constraint("Equal", 17, 39),
    Sketcher.Constraint("Equal", 37, 41),
    Sketcher.Constraint("Equal", 41, 43),
    Sketcher.Constraint("Equal", 43, 45),
    Sketcher.Constraint("Equal", 31, 47),
    Sketcher.Constraint("Equal", 7, 49),
    Sketcher.Constraint("Equal", 49, 51),
    Sketcher.Constraint("Equal", 47, 53),
    Sketcher.Constraint("Equal", 45, 55),
    Sketcher.Constraint("Equal", 55, 57),
    Sketcher.Constraint("Equal", 57, 59),
    Sketcher.Constraint("Equal", 39, 61),
    Sketcher.Constraint("Equal", 59, 63),
    Sketcher.Constraint("Equal", 63, 65),
    Sketcher.Constraint("Equal", 65, 67),
    Sketcher.Constraint("Equal", 53, 69),
    Sketcher.Constraint("Equal", 29, 71),
    Sketcher.Constraint("Equal", 71, 73),
    Sketcher.Constraint("Equal", 69, 75),
    Sketcher.Constraint("Equal", 67, 77),
    Sketcher.Constraint("Equal", 77, 79),
    Sketcher.Constraint("Equal", 79, 81),
    Sketcher.Constraint("Equal", 61, 83),
    Sketcher.Constraint("Equal", 81, 85),
    Sketcher.Constraint("Equal", 85, 87),
    Sketcher.Constraint("Symmetric", 1, 3, 45, 3, -1, 1),
    Sketcher.Constraint("Symmetric", 5, 3, 49, 3, -1, 1),
    Sketcher.Constraint("Symmetric", 9, 3, 53, 3, -1, 1),
    Sketcher.Constraint("Symmetric", 13, 3, 57, 3, -1, 1),
    Sketcher.Constraint("Symmetric", 17, 3, 61, 3, -1, 1),
    Sketcher.Constraint("Symmetric", 27, 3, 71, 3, -1, 1),
    Sketcher.Constraint("Symmetric", 31, 3, 75, 3, -1, 1),
    Sketcher.Constraint("Symmetric", 41, 3, 85, 3, -1, 1),
    Sketcher.Constraint("Symmetric", 3, 3, 9, 3, -2),
    Sketcher.Constraint("Symmetric", 43, 3, 57, 3, -2),
    Sketcher.Constraint("Symmetric", 39, 3, 61, 3, -2),
    Sketcher.Constraint("Symmetric", 23, 3, 77, 3, -2),
    Sketcher.Constraint("Symmetric", 48, 2, 51, 1, -2),
    Sketcher.Constraint("Symmetric", 29, 1, 70, 2, -2),
    Sketcher.Constraint("Symmetric", 26, 2, 73, 1, -2),
    Sketcher.Constraint("Symmetric", 21, 3, 35, 3, -1),
    Sketcher.Constraint("Perpendicular", 4, 8),
    Sketcher.Constraint("Parallel", 8, 26),
    Sketcher.Constraint("Perpendicular", 26, 30),
    Sketcher.Constraint("Horizontal", 78, 2, 81, 2),
    Sketcher.Constraint("Vertical", 63, 2, 80, 2),
    Sketcher.Constraint("Vertical", 62, 2, 81, 2),
    Sketcher.Constraint("Equal", 60, 18),
    Sketcher.Constraint("Diameter", 88, Q("6.8 mm")),
    Sketcher.Constraint("Angle", 68, Q("-2 deg")),
    Sketcher.Constraint("Radius", 1, Q("1.57 mm")),
    Sketcher.Constraint("Radius", 3, Q("0.76 mm")),
    Sketcher.Constraint("Radius", 17, Q("3.17 mm")),
    Sketcher.Constraint("Radius", 27, Q("4.75 mm")),
    Sketcher.Constraint("DistanceX", 16, 1, 16, 2, Q("11.2 mm")),
    Sketcher.Constraint("DistanceY", 15, 2, -1, 1, Q("20 mm")),
    Sketcher.Constraint("DistanceX", -1, 1, 17, 2, Q("20 mm")),
    Sketcher.Constraint("DistanceX", 64, 1, 64, 2, Q("1.18 mm")),
    Sketcher.Constraint("DistanceX", 0, 2, 0, 1, Q("3.085 mm")),
    Sketcher.Constraint("Radius", 5, Q("4.864551 mm")),
    Sketcher.Constraint("DistanceY", 22, 2, 22, 1, Q("3.085399 mm")),
    Sketcher.Constraint("DistanceX", -1, 1, 27, 3, Q("12.435 mm")),
    Sketcher.Constraint("DistanceY", 5, 1, -1, 1, Q("7.685 mm")),
    Sketcher.Constraint("DistanceY", -1, 1, 68, 2, Q("10.033001 mm")),
    Sketcher.Constraint("DistanceX", 6, 1, 6, 2, Q("5.554671 mm")),
    Sketcher.Constraint("DistanceX", 24, 2, 24, 1, Q("0.489942 mm")),
    Sketcher.Constraint("DistanceY", 2, 1, 2, 2, Q("0.462111 mm")),
    Sketcher.Constraint("DistanceY", 28, 1, 28, 2, Q("5.001569 mm")),
    Sketcher.Constraint("DistanceY", 62, 2, 62, 1, Q("11.257021 mm")),
    Sketcher.Constraint("DistanceY", 78, 1, 78, 2, Q("2.95748 mm")),
    Sketcher.Constraint("DistanceY", 82, 2, 82, 1, Q("11.260449 mm")),
    Sketcher.Constraint("DistanceX", 68, 2, -1, 1, Q("13.719899 mm")),
    Sketcher.Constraint("DistanceX", 20, 2, 20, 1, Q("1.180004 mm")),
    Sketcher.Constraint("DistanceX", 80, 2, 80, 1, Q("1.181454 mm")),
    Sketcher.Constraint("DistanceX", 84, 1, 84, 2, Q("11.044615 mm")),
    Sketcher.Constraint("DistanceX", -1, 1, 25, 3, Q("13.811732 mm")),
])
pad1 = body.newObject("PartDesign::Pad", "Pad")
pad1.Profile = sketch1
pad1.Length = 100

doc.recompute()
